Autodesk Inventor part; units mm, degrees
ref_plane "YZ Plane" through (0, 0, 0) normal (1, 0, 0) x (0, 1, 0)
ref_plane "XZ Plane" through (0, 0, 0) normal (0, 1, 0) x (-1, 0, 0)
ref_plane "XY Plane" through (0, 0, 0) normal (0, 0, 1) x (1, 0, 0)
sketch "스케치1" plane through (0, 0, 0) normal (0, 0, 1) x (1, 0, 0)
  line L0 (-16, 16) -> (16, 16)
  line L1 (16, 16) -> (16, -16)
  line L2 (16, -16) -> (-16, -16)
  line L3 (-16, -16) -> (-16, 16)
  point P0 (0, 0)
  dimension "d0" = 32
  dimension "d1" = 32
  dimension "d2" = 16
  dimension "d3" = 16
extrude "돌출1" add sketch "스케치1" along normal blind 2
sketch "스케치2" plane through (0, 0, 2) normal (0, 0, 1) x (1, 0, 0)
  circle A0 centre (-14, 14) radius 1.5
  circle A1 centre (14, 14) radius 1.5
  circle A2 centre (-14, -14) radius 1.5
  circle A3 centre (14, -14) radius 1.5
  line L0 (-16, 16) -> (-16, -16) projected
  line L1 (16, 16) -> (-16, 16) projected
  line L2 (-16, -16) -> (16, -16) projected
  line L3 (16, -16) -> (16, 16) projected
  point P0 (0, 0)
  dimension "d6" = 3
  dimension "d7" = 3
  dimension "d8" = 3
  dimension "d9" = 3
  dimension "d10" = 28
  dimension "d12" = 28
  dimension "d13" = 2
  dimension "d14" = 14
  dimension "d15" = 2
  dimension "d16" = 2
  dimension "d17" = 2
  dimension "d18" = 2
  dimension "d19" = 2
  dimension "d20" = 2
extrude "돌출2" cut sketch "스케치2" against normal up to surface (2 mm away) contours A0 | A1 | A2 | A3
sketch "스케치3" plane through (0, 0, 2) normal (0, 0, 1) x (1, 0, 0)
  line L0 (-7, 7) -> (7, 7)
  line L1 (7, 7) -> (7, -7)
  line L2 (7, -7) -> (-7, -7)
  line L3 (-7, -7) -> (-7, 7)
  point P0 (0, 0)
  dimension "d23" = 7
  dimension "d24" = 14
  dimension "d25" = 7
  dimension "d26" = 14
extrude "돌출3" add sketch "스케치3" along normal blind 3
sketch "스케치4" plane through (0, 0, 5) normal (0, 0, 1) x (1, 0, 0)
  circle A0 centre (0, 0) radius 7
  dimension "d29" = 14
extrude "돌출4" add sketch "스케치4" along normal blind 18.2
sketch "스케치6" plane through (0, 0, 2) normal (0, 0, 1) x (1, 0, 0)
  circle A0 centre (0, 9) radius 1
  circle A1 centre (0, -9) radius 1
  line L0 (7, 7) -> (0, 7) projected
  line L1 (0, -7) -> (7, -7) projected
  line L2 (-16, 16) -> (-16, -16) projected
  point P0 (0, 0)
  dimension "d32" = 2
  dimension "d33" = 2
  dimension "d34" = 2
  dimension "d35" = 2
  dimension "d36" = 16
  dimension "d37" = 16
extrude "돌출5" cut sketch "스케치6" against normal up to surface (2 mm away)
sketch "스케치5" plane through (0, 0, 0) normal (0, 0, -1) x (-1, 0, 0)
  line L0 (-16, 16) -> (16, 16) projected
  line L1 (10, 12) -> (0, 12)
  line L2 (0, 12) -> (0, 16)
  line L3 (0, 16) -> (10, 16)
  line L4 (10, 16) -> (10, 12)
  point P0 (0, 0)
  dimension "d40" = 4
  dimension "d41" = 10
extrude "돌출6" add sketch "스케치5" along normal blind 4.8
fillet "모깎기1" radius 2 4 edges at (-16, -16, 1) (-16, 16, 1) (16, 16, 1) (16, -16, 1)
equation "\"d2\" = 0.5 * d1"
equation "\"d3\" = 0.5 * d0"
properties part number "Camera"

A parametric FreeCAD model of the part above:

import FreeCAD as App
import Part
import Sketcher


def edges_at(feature, points):
    """Names of the edges that pass closest to the given points."""
    edges = feature.Shape.Edges
    near = lambda p: min(range(len(edges)), key=lambda i: edges[i].distToShape(Part.Vertex(*p))[0])
    return sorted({f"Edge{near(p) + 1}" for p in points})

doc = App.newDocument("Part")
body = doc.addObject("PartDesign::Body", "Body")

# Sketch on XY plane
sketch1 = body.newObject("Sketcher::SketchObject", "Sketch")
sketch1.AttachmentSupport = (doc.getObject("XY_Plane"), [""])
sketch1.MapMode = "FlatFace"
sketch1.addGeometry(Part.LineSegment(App.Vector(16, 16, 0), App.Vector(-16, 16, 0)), False)
sketch1.addGeometry(Part.LineSegment(App.Vector(-16, 16, 0), App.Vector(-16, -16, 0)), False)
sketch1.addGeometry(Part.LineSegment(App.Vector(-16, -16, 0), App.Vector(16, -16, 0)), False)
sketch1.addGeometry(Part.LineSegment(App.Vector(16, -16, 0), App.Vector(16, 16, 0)), False)
sketch1.addConstraint(Sketcher.Constraint("Coincident", 0, 2, 1, 1))
sketch1.addConstraint(Sketcher.Constraint("Coincident", 1, 2, 2, 1))
sketch1.addConstraint(Sketcher.Constraint("Coincident", 2, 2, 3, 1))
sketch1.addConstraint(Sketcher.Constraint("Coincident", 3, 2, 0, 1))
sketch1.addConstraint(Sketcher.Constraint("Horizontal", 0))
sketch1.addConstraint(Sketcher.Constraint("Vertical", 1))
sketch1.addConstraint(Sketcher.Constraint("Horizontal", 2))
sketch1.addConstraint(Sketcher.Constraint("Vertical", 3))
sketch1.addConstraint(Sketcher.Constraint("Symmetric", 0, 2, 2, 2, -1, 1))
sketch1.addConstraint(Sketcher.Constraint("Equal", 2, 1))
sketch1.addConstraint(Sketcher.Constraint("DistanceX", 0, 2, 0, 1, 32.0))
pad1 = body.newObject("PartDesign::Pad", "Pad")
pad1.Profile = sketch1
pad1.Length = 2

# Sketch on XY plane
sketch2 = body.newObject("Sketcher::SketchObject", "Sketch001")
sketch2.AttachmentSupport = (doc.getObject("XY_Plane"), [""])
sketch2.MapMode = "FlatFace"
sketch2.AttachmentOffset = App.Placement(App.Vector(0, 0, 2), App.Rotation())
sketch2.addGeometry(Part.Circle(App.Vector(-14, 14, 0), App.Vector(0, 0, 1), 1.5), False)
sketch2.addGeometry(Part.Circle(App.Vector(14, 14, 0), App.Vector(0, 0, 1), 1.5), False)
sketch2.addGeometry(Part.Circle(App.Vector(-14, -14, 0), App.Vector(0, 0, 1), 1.5), False)
sketch2.addGeometry(Part.Circle(App.Vector(14, -14, 0), App.Vector(0, 0, 1), 1.5), False)
sketch2.addConstraint(Sketcher.Constraint("Equal", 0, 1))
sketch2.addConstraint(Sketcher.Constraint("Equal", 1, 2))
sketch2.addConstraint(Sketcher.Constraint("Equal", 2, 3))
sketch2.addConstraint(Sketcher.Constraint("Symmetric", 1, 3, 2, 3, -1, 1))
sketch2.addConstraint(Sketcher.Constraint("Symmetric", 0, 3, 3, 3, -1, 1))
sketch2.addConstraint(Sketcher.Constraint("Symmetric", 0, 3, 1, 3, -2))
sketch2.addConstraint(Sketcher.Constraint("Diameter", 0, 3.0))
sketch2.addConstraint(Sketcher.Constraint("DistanceX", 0, 3, -1, 1, 14.0))
sketch2.addConstraint(Sketcher.Constraint("DistanceY", -1, 1, 0, 3, 14.0))
pocket1 = body.newObject("PartDesign::Pocket", "Pocket")
pocket1.Profile = sketch2
pocket1.Length = 2

# Sketch on XY plane
sketch3 = body.newObject("Sketcher::SketchObject", "Sketch002")
sketch3.AttachmentSupport = (doc.getObject("XY_Plane"), [""])
sketch3.MapMode = "FlatFace"
sketch3.AttachmentOffset = App.Placement(App.Vector(0, 0, 2), App.Rotation())
sketch3.addGeometry(Part.LineSegment(App.Vector(7, 7, 0), App.Vector(-7, 7, 0)), False)
sketch3.addGeometry(Part.LineSegment(App.Vector(-7, 7, 0), App.Vector(-7, -7, 0)), False)
sketch3.addGeometry(Part.LineSegment(App.Vector(-7, -7, 0), App.Vector(7, -7, 0)), False)
sketch3.addGeometry(Part.LineSegment(App.Vector(7, -7, 0), App.Vector(7, 7, 0)), False)
sketch3.addConstraint(Sketcher.Constraint("Coincident", 0, 2, 1, 1))
sketch3.addConstraint(Sketcher.Constraint("Coincident", 1, 2, 2, 1))
sketch3.addConstraint(Sketcher.Constraint("Coincident", 2, 2, 3, 1))
sketch3.addConstraint(Sketcher.Constraint("Coincident", 3, 2, 0, 1))
sketch3.addConstraint(Sketcher.Constraint("Horizontal", 0))
sketch3.addConstraint(Sketcher.Constraint("Vertical", 1))
sketch3.addConstraint(Sketcher.Constraint("Horizontal", 2))
sketch3.addConstraint(Sketcher.Constraint("Vertical", 3))
sketch3.addConstraint(Sketcher.Constraint("Symmetric", 0, 2, 2, 2, -1, 1))
sketch3.addConstraint(Sketcher.Constraint("Equal", 2, 1))
sketch3.addConstraint(Sketcher.Constraint("DistanceX", 0, 2, 0, 1, 14.0))
pad2 = body.newObject("PartDesign::Pad", "Pad001")
pad2.Profile = sketch3
pad2.Length = 3

# Sketch on XY plane
sketch4 = body.newObject("Sketcher::SketchObject", "Sketch003")
sketch4.AttachmentSupport = (doc.getObject("XY_Plane"), [""])
sketch4.MapMode = "FlatFace"
sketch4.AttachmentOffset = App.Placement(App.Vector(0, 0, 5), App.Rotation())
sketch4.addGeometry(Part.Circle(App.Vector(0, 0, 0), App.Vector(0, 0, 1), 7), False)
sketch4.addConstraint(Sketcher.Constraint("Coincident", 0, 3, -1, 1))
sketch4.addConstraint(Sketcher.Constraint("Diameter", 0, 14.0))
pad3 = body.newObject("PartDesign::Pad", "Pad002")
pad3.Profile = sketch4
pad3.Length = 18.2

# Sketch on XY plane
sketch5 = body.newObject("Sketcher::SketchObject", "Sketch004")
sketch5.AttachmentSupport = (doc.getObject("XY_Plane"), [""])
sketch5.MapMode = "FlatFace"
sketch5.AttachmentOffset = App.Placement(App.Vector(0, 0, 2), App.Rotation())
sketch5.addGeometry(Part.Circle(App.Vector(0, 9, 0), App.Vector(0, 0, 1), 1), False)
sketch5.addGeometry(Part.Circle(App.Vector(0, -9, 0), App.Vector(0, 0, 1), 1), False)
sketch5.addConstraint(Sketcher.Constraint("Equal", 0, 1))
sketch5.addConstraint(Sketcher.Constraint("Symmetric", 0, 3, 1, 3, -1, 1))
sketch5.addConstraint(Sketcher.Constraint("PointOnObject", 0, 3, -2))
sketch5.addConstraint(Sketcher.Constraint("Diameter", 0, 2.0))
sketch5.addConstraint(Sketcher.Constraint("DistanceY", -1, 1, 0, 3, 9.0))
pocket2 = body.newObject("PartDesign::Pocket", "Pocket001")
pocket2.Profile = sketch5
pocket2.Length = 2

# Sketch on XY plane
sketch6 = body.newObject("Sketcher::SketchObject", "Sketch005")
sketch6.AttachmentSupport = (doc.getObject("XY_Plane"), [""])
sketch6.MapMode = "FlatFace"
sketch6.addGeometry(Part.LineSegment(App.Vector(-10, 16, 0), App.Vector(0, 16, 0)), False)
sketch6.addGeometry(Part.LineSegment(App.Vector(0, 16, 0), App.Vector(0, 12, 0)), False)
sketch6.addGeometry(Part.LineSegment(App.Vector(0, 12, 0), App.Vector(-10, 12, 0)), False)
sketch6.addGeometry(Part.LineSegment(App.Vector(-10, 12, 0), App.Vector(-10, 16, 0)), False)
sketch6.addConstraint(Sketcher.Constraint("Coincident", 0, 2, 1, 1))
sketch6.addConstraint(Sketcher.Constraint("Coincident", 1, 2, 2, 1))
sketch6.addConstraint(Sketcher.Constraint("Coincident", 2, 2, 3, 1))
sketch6.addConstraint(Sketcher.Constraint("Coincident", 3, 2, 0, 1))
sketch6.addConstraint(Sketcher.Constraint("Horizontal", 0))
sketch6.addConstraint(Sketcher.Constraint("Vertical", 1))
sketch6.addConstraint(Sketcher.Constraint("Horizontal", 2))
sketch6.addConstraint(Sketcher.Constraint("Vertical", 3))
sketch6.addConstraint(Sketcher.Constraint("PointOnObject", 0, 2, -2))
sketch6.addConstraint(Sketcher.Constraint("DistanceX", 0, 1, 0, 2, 10.0))
sketch6.addConstraint(Sketcher.Constraint("DistanceY", 1, 2, 1, 1, 4.0))
sketch6.addConstraint(Sketcher.Constraint("DistanceY", -1, 1, 0, 2, 16.0))
pad4 = body.newObject("PartDesign::Pad", "Pad003")
pad4.Profile = sketch6
pad4.Length = 4.8
pad4.Reversed = True
doc.recompute()

fillet = body.newObject("PartDesign::Fillet", "Fillet")
fillet.Base = (pad4, edges_at(pad4, [
    (-16, -16, 1),
    (-16, 16, 1),
    (16, 16, 1),
    (16, -16, 1),
]))
fillet.Radius = 2

doc.recompute()
